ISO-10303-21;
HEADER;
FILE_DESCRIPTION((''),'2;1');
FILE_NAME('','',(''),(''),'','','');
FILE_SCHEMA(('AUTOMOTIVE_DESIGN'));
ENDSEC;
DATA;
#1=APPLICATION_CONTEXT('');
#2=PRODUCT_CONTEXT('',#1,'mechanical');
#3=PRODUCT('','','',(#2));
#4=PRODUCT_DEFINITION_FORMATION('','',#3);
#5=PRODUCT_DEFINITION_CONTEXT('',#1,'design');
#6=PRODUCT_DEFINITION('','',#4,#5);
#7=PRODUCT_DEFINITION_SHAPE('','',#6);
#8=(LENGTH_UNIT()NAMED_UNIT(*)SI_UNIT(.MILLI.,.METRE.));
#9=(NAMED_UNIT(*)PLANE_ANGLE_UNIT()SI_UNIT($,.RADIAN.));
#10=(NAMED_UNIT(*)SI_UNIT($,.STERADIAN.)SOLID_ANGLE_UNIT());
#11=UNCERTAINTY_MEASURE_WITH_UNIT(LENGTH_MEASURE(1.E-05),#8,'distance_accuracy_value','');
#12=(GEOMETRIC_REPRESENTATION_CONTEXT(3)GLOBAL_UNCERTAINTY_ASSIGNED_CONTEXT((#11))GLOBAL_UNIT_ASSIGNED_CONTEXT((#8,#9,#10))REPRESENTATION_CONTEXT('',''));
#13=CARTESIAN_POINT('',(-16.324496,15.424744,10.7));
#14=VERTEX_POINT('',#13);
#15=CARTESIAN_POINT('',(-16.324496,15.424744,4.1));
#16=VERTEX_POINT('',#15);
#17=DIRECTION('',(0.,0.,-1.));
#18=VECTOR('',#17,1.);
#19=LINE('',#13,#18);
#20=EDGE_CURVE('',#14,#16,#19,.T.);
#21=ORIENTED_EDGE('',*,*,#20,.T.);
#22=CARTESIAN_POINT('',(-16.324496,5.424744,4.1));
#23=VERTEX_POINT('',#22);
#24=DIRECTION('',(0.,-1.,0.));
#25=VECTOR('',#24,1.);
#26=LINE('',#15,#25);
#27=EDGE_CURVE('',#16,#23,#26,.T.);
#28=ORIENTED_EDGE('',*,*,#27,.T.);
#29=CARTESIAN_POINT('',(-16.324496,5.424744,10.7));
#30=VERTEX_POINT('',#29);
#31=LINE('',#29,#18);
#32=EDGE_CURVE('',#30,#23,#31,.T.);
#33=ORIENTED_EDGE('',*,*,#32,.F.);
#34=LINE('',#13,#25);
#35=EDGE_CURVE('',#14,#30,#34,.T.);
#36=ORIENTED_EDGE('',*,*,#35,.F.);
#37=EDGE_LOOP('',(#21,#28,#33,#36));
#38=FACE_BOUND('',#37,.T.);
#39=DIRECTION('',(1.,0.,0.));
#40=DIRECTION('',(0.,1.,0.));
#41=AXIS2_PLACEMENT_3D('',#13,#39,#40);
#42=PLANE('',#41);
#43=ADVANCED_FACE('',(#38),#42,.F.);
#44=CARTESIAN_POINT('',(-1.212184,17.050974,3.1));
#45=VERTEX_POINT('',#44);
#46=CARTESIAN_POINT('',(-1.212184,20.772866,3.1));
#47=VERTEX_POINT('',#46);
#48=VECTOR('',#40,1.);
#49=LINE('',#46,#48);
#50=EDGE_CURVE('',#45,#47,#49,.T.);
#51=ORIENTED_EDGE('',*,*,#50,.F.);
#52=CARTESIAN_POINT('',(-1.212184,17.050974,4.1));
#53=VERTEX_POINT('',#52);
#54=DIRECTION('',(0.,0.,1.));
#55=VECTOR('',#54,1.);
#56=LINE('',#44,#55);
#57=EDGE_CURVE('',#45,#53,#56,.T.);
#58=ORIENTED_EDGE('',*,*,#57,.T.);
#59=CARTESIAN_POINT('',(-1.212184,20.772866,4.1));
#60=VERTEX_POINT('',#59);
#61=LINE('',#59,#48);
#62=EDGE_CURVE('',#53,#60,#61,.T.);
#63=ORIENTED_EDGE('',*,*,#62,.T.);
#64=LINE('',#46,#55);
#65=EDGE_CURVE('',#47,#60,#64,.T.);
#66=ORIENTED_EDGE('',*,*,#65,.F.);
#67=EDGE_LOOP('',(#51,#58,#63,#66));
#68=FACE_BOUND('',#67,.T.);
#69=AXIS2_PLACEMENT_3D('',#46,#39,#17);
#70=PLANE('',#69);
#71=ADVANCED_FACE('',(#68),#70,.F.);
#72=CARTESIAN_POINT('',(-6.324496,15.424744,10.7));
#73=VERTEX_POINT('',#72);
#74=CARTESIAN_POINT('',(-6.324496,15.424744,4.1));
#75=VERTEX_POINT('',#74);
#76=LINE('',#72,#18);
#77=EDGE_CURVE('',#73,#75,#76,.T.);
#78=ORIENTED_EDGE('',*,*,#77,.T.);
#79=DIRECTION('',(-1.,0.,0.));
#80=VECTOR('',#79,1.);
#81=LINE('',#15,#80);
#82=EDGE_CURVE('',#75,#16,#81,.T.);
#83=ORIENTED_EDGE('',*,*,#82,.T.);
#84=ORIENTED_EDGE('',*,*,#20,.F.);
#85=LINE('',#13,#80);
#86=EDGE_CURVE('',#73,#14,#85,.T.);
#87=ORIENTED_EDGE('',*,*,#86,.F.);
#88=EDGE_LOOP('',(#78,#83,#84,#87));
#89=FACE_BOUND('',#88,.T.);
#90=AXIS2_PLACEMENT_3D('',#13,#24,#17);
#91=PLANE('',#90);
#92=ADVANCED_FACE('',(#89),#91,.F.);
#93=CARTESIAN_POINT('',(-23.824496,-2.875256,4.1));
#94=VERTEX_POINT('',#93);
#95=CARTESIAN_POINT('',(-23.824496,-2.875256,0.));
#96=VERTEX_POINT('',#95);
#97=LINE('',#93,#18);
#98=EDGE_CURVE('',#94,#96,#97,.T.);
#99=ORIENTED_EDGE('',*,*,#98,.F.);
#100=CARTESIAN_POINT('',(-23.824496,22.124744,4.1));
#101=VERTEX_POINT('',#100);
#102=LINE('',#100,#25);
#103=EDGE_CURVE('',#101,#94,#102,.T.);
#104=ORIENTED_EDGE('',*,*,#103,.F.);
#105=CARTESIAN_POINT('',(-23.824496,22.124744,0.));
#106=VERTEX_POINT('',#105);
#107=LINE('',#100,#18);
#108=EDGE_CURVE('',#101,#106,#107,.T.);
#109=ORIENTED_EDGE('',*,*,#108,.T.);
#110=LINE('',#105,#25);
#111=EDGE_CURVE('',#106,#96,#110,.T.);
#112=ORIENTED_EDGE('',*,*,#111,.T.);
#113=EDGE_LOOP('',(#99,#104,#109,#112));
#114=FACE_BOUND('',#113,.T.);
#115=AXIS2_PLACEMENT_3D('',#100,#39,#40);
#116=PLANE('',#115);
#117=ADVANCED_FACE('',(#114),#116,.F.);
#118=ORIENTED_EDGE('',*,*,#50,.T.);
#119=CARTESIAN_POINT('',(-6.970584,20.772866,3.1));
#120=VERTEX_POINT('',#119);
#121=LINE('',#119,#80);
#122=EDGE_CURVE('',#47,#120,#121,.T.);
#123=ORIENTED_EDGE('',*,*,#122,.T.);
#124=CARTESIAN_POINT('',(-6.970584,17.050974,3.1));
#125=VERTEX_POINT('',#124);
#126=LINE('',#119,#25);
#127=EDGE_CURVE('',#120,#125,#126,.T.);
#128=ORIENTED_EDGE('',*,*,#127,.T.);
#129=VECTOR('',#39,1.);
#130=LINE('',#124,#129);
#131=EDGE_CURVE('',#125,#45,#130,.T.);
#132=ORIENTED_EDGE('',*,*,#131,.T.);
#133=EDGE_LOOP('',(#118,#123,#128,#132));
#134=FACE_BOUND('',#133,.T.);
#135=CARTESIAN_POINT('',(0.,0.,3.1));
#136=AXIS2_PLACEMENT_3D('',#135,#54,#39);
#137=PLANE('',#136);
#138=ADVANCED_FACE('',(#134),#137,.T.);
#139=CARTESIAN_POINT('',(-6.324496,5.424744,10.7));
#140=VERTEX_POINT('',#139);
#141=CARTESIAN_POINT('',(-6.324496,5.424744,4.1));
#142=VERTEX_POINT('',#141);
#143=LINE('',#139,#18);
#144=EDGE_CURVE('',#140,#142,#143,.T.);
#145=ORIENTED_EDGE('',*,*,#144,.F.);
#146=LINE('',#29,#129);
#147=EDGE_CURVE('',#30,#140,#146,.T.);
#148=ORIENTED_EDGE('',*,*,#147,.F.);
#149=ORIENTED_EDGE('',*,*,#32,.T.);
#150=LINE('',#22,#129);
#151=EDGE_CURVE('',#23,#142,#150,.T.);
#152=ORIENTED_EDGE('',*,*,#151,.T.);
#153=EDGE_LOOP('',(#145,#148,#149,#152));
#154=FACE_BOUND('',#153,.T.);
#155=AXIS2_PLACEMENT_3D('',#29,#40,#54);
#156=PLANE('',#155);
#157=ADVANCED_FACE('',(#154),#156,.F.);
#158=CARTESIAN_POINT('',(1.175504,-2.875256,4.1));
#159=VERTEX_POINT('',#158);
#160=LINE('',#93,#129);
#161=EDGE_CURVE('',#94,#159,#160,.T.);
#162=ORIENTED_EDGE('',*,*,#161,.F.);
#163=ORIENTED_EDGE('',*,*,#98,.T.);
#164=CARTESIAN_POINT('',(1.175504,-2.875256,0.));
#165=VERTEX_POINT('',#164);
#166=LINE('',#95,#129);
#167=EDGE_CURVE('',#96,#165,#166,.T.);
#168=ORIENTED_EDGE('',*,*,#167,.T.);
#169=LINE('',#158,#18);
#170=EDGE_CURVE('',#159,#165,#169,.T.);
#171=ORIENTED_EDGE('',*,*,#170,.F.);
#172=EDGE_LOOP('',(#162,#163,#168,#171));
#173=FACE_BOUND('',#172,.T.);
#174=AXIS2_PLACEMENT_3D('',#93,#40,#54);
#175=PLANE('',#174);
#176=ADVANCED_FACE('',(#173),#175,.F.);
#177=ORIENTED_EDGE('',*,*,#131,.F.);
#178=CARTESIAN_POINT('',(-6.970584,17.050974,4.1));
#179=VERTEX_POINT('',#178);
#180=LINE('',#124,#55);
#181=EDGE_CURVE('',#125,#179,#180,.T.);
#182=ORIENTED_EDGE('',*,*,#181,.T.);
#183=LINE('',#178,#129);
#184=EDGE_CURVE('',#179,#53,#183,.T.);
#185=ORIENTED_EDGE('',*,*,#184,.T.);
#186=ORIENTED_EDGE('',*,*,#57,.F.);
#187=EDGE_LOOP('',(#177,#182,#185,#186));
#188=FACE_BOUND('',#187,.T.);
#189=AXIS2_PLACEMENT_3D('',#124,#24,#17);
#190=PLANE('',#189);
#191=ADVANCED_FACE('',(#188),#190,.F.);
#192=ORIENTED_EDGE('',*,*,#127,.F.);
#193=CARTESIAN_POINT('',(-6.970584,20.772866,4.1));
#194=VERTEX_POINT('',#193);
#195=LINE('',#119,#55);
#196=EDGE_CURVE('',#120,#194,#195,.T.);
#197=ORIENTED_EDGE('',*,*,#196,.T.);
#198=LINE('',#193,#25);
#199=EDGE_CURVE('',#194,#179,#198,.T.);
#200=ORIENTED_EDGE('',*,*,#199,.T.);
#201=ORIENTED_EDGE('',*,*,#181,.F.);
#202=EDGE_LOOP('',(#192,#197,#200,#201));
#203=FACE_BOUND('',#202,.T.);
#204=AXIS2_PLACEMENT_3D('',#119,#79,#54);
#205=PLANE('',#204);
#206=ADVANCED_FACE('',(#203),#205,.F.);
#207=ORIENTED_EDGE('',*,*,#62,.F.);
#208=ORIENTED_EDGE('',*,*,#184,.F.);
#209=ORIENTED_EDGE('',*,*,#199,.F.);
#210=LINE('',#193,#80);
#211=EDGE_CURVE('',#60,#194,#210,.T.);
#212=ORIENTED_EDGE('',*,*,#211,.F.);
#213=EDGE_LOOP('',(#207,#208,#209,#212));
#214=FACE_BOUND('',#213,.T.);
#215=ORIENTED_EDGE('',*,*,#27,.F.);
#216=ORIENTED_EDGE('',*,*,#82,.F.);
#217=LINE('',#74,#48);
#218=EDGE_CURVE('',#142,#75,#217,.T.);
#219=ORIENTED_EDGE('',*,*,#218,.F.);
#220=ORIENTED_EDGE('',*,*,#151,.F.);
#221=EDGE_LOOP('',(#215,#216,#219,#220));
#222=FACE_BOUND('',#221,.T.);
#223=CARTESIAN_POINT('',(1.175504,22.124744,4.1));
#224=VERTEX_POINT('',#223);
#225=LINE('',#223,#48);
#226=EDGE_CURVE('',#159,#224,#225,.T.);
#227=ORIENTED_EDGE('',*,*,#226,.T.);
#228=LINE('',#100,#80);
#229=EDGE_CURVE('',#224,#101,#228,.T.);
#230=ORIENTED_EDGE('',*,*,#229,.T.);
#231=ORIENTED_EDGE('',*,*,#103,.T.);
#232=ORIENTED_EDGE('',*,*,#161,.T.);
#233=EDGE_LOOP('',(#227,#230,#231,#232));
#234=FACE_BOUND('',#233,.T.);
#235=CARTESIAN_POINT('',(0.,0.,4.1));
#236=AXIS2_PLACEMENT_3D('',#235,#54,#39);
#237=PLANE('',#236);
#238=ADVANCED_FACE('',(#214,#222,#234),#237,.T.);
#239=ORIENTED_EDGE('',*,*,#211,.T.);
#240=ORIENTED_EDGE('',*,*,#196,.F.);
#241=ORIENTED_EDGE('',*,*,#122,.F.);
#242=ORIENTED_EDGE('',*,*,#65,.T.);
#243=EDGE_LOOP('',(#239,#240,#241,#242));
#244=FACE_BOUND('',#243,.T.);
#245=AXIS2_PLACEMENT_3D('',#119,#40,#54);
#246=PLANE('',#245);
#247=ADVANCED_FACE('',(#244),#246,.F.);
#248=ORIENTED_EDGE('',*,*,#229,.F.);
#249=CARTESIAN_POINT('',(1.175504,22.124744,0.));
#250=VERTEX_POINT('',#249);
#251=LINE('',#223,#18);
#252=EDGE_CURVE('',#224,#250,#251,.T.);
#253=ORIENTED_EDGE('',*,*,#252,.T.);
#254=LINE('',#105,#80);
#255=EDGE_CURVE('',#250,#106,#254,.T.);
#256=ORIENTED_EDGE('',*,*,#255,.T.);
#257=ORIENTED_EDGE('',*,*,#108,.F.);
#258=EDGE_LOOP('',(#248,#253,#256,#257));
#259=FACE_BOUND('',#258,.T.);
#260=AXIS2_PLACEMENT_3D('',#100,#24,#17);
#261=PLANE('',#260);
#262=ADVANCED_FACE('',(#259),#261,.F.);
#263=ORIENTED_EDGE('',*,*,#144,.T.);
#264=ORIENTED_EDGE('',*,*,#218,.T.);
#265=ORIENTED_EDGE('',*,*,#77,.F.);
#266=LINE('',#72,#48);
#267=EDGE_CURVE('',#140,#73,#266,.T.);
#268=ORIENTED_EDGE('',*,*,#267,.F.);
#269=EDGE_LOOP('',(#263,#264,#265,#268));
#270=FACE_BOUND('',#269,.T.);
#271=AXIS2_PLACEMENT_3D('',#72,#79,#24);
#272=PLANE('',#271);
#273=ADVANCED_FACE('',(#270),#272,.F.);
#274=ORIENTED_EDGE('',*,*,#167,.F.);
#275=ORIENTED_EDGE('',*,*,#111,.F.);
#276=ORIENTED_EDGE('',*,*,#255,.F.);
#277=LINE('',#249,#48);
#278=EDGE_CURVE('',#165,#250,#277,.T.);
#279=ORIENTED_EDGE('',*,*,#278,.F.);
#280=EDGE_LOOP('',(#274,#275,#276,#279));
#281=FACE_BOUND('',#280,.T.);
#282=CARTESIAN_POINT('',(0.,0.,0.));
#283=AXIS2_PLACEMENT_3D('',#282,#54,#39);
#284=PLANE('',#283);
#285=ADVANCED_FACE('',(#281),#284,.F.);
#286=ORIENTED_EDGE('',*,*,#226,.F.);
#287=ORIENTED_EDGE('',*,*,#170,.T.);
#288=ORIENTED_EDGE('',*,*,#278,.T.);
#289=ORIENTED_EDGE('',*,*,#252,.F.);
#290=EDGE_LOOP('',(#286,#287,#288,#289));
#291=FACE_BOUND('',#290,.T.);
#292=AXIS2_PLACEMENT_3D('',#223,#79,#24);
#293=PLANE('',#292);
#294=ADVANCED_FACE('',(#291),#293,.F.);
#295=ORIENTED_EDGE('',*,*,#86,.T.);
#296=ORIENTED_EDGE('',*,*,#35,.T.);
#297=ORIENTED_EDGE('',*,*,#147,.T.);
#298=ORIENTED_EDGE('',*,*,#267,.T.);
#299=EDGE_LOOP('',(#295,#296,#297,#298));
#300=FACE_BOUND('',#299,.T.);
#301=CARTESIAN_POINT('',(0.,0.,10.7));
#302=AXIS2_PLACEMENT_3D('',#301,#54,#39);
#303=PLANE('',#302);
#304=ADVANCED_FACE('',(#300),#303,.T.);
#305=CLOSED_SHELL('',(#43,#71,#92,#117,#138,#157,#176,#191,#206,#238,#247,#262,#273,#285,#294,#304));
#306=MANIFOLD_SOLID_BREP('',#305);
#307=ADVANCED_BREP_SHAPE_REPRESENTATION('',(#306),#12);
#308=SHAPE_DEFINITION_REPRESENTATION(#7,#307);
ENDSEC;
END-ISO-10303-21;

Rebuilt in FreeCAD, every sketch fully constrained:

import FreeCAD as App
import Part
import Sketcher
Q = App.Units.Quantity

doc = App.newDocument("Part")
body = doc.addObject("PartDesign::Body", "Body")

sketch1 = doc.addObject("Sketcher::SketchObject", "Sketch")
body.addObject(sketch1)
sketch1.AttachmentSupport = (doc.XY_Plane, [""])
sketch1.MapMode = "FlatFace"
sketch1.addGeometry(Part.LineSegment(App.Vector(-23.824496, 22.124744, 0), App.Vector(-23.824496, -2.875256, 0)), False)
sketch1.addGeometry(Part.LineSegment(App.Vector(-23.824496, -2.875256, 0), App.Vector(1.175504, -2.875256, 0)), False)
sketch1.addGeometry(Part.LineSegment(App.Vector(1.175504, -2.875256, 0), App.Vector(1.175504, 22.124744, 0)), False)
sketch1.addGeometry(Part.LineSegment(App.Vector(1.175504, 22.124744, 0), App.Vector(-23.824496, 22.124744, 0)), False)
sketch1.addConstraint(Sketcher.Constraint("Coincident", 0, 2, 1, 1))
sketch1.addConstraint(Sketcher.Constraint("Coincident", 1, 2, 2, 1))
sketch1.addConstraint(Sketcher.Constraint("Coincident", 2, 2, 3, 1))
sketch1.addConstraint(Sketcher.Constraint("Coincident", 3, 2, 0, 1))
sketch1.addConstraint(Sketcher.Constraint("Vertical", 0))
sketch1.addConstraint(Sketcher.Constraint("Horizontal", 1))
sketch1.addConstraint(Sketcher.Constraint("Vertical", 2))
sketch1.addConstraint(Sketcher.Constraint("Horizontal", 3))
sketch1.addConstraint(Sketcher.Constraint("Equal", 3, 0))
sketch1.addConstraint(Sketcher.Constraint("DistanceX", 1, 1, 1, 2, Q("25 mm")))
sketch1.addConstraint(Sketcher.Constraint("DistanceX", 0, 2, -1, 1, Q("23.824496 mm")))
sketch1.addConstraint(Sketcher.Constraint("DistanceY", 0, 2, -1, 1, Q("2.875256 mm")))
pad1 = doc.addObject("PartDesign::Pad", "Pad")
body.addObject(pad1)
pad1.Profile = sketch1
pad1.Length = 4.1

sketch2 = doc.addObject("Sketcher::SketchObject", "Sketch001")
body.addObject(sketch2)
sketch2.AttachmentSupport = (doc.XY_Plane, [""])
sketch2.MapMode = "FlatFace"
sketch2.AttachmentOffset = App.Placement(App.Vector(0, 0, 4.1), App.Rotation())
sketch2.addGeometry(Part.LineSegment(App.Vector(-16.324496, 15.424744, 0), App.Vector(-16.324496, 5.424744, 0)), False)
sketch2.addGeometry(Part.LineSegment(App.Vector(-16.324496, 5.424744, 0), App.Vector(-6.324496, 5.424744, 0)), False)
sketch2.addGeometry(Part.LineSegment(App.Vector(-6.324496, 5.424744, 0), App.Vector(-6.324496, 15.424744, 0)), False)
sketch2.addGeometry(Part.LineSegment(App.Vector(-6.324496, 15.424744, 0), App.Vector(-16.324496, 15.424744, 0)), False)
sketch2.addConstraint(Sketcher.Constraint("Coincident", 0, 2, 1, 1))
sketch2.addConstraint(Sketcher.Constraint("Coincident", 1, 2, 2, 1))
sketch2.addConstraint(Sketcher.Constraint("Coincident", 2, 2, 3, 1))
sketch2.addConstraint(Sketcher.Constraint("Coincident", 3, 2, 0, 1))
sketch2.addConstraint(Sketcher.Constraint("Vertical", 0))
sketch2.addConstraint(Sketcher.Constraint("Horizontal", 1))
sketch2.addConstraint(Sketcher.Constraint("Vertical", 2))
sketch2.addConstraint(Sketcher.Constraint("Horizontal", 3))
sketch2.addConstraint(Sketcher.Constraint("Equal", 3, 0))
sketch2.addConstraint(Sketcher.Constraint("DistanceX", 1, 1, 1, 2, Q("10 mm")))
sketch2.addConstraint(Sketcher.Constraint("DistanceX", 0, 2, -1, 1, Q("16.324496 mm")))
sketch2.addConstraint(Sketcher.Constraint("DistanceY", -1, 1, 0, 2, Q("5.424744 mm")))
pad2 = doc.addObject("PartDesign::Pad", "Pad001")
body.addObject(pad2)
pad2.Profile = sketch2
pad2.Length = 6.6

sketch3 = doc.addObject("Sketcher::SketchObject", "Sketch002")
body.addObject(sketch3)
sketch3.AttachmentSupport = (doc.XY_Plane, [""])
sketch3.MapMode = "FlatFace"
sketch3.AttachmentOffset = App.Placement(App.Vector(0, 0, 4.1), App.Rotation())
sketch3.addGeometry(Part.LineSegment(App.Vector(-6.970584, 20.772866, 0), App.Vector(-6.970584, 17.050974, 0)), False)
sketch3.addGeometry(Part.LineSegment(App.Vector(-6.970584, 17.050974, 0), App.Vector(-1.212184, 17.050974, 0)), False)
sketch3.addGeometry(Part.LineSegment(App.Vector(-1.212184, 17.050974, 0), App.Vector(-1.212184, 20.772866, 0)), False)
sketch3.addGeometry(Part.LineSegment(App.Vector(-1.212184, 20.772866, 0), App.Vector(-6.970584, 20.772866, 0)), False)
sketch3.addConstraint(Sketcher.Constraint("Coincident", 0, 2, 1, 1))
sketch3.addConstraint(Sketcher.Constraint("Coincident", 1, 2, 2, 1))
sketch3.addConstraint(Sketcher.Constraint("Coincident", 2, 2, 3, 1))
sketch3.addConstraint(Sketcher.Constraint("Coincident", 3, 2, 0, 1))
sketch3.addConstraint(Sketcher.Constraint("Vertical", 0))
sketch3.addConstraint(Sketcher.Constraint("Horizontal", 1))
sketch3.addConstraint(Sketcher.Constraint("Vertical", 2))
sketch3.addConstraint(Sketcher.Constraint("Horizontal", 3))
sketch3.addConstraint(Sketcher.Constraint("DistanceX", 1, 1, 1, 2, Q("5.7584 mm")))
sketch3.addConstraint(Sketcher.Constraint("DistanceY", 0, 2, 0, 1, Q("3.721893 mm")))
sketch3.addConstraint(Sketcher.Constraint("DistanceX", 0, 2, -1, 1, Q("6.970584 mm")))
sketch3.addConstraint(Sketcher.Constraint("DistanceY", -1, 1, 0, 2, Q("17.050974 mm")))
pocket1 = doc.addObject("PartDesign::Pocket", "Pocket")
body.addObject(pocket1)
pocket1.Profile = sketch3
pocket1.Length = 1

doc.recompute()
